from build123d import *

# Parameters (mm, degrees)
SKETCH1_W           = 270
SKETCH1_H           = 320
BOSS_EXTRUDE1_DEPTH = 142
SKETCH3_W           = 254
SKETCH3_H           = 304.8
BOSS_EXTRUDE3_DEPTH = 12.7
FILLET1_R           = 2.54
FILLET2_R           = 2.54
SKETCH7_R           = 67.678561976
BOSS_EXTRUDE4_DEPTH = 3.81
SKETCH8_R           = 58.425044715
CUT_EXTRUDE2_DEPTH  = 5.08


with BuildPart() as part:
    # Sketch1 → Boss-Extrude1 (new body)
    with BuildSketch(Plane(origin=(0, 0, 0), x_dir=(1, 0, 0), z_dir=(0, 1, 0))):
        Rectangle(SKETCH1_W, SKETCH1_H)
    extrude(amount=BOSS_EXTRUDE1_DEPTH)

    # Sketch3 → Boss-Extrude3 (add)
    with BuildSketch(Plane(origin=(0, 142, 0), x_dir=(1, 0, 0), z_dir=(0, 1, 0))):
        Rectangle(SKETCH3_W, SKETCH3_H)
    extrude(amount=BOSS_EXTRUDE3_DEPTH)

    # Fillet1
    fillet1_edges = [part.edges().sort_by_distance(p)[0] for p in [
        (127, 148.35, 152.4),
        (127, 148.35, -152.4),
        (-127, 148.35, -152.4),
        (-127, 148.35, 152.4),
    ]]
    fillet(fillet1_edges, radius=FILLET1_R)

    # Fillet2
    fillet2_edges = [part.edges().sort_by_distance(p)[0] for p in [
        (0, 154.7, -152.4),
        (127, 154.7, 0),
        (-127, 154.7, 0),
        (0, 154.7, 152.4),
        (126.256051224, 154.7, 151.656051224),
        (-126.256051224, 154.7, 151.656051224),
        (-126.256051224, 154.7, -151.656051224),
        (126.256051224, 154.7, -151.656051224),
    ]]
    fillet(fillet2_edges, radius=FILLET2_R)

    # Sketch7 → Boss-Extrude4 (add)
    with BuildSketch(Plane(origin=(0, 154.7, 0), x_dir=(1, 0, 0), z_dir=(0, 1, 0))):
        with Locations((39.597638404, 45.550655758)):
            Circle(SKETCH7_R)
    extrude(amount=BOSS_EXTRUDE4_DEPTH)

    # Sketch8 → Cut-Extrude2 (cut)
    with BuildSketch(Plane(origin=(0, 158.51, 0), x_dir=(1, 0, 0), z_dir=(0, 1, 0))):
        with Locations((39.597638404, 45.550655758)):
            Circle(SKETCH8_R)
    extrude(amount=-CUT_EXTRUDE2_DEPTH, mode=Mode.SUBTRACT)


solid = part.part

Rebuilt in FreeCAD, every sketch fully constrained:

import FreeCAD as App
import Part
import Sketcher
from FreeCAD import Vector
Q = App.Units.Quantity


def edges_at(feature, points):
    """Names of the edges that pass closest to the given points."""
    edges = feature.Shape.Edges
    near = lambda p: min(range(len(edges)), key=lambda i: edges[i].distToShape(Part.Vertex(*p))[0])
    return sorted({f"Edge{near(p) + 1}" for p in points})


def add_polygon(sketch, points):
    """Adds a closed chain of lines whose ends are joined by coincident constraints."""
    first, n = sketch.GeometryCount, len(points)
    for a, b in zip(points, points[1:] + points[:1]):
        sketch.addGeometry(Part.LineSegment(App.Vector(*a, 0), App.Vector(*b, 0)), False)
    for i in range(n):
        sketch.addConstraint(Sketcher.Constraint("Coincident", first + i, 2, first + (i + 1) % n, 1))

doc = App.newDocument("Part")
params = doc.addObject("Spreadsheet::Sheet", "Params")
for row, (alias, value) in enumerate([
    ("pad1_length", "142 mm"),
    ("sketch2_width", "10 in"),
    ("sketch2_height", "12 in"),
    ("pad2_length", "0.5 in"),
    ("fillet_radius", "0.1 in"),
    ("fillet2_radius", "0.1 in"),
    ("pad3_length", "0.15 in"),
    ("pocket1_length", "0.2 in"),
], start=1):
    params.set(f"A{row}", alias)
    params.set(f"B{row}", "=" + value)
    params.setAlias(f"B{row}", alias)

body = doc.addObject("PartDesign::Body", "Body")

sketch1 = body.newObject("Sketcher::SketchObject", "Sketch")
sketch1.AttachmentSupport = (doc.getObject("XZ_Plane"), [""])
sketch1.MapMode = "FlatFace"
add_polygon(sketch1, [(-135, -160), (-135, 160), (135, 160), (135, -160)])
sketch1.addConstraint(Sketcher.Constraint("Vertical", 0))
sketch1.addConstraint(Sketcher.Constraint("Horizontal", 1))
sketch1.addConstraint(Sketcher.Constraint("Vertical", 2))
sketch1.addConstraint(Sketcher.Constraint("Horizontal", 3))
sketch1.addConstraint(Sketcher.Constraint("Symmetric", 0, 2, 2, 2, -1, 1))
sketch1.addConstraint(Sketcher.Constraint("DistanceX", 1, 1, 1, 2, 270.0))
sketch1.addConstraint(Sketcher.Constraint("DistanceY", 0, 1, 0, 2, 320.0))
pad1 = body.newObject("PartDesign::Pad", "Pad")
pad1.Profile = sketch1
pad1.setExpression("Length", "Params.pad1_length")
pad1.Reversed = True

sketch2 = body.newObject("Sketcher::SketchObject", "Sketch001")
sketch2.AttachmentSupport = (doc.getObject("XZ_Plane"), [""])
sketch2.MapMode = "FlatFace"
sketch2.AttachmentOffset = App.Placement(Vector(0, 0, -142), App.Rotation())
add_polygon(sketch2, [(-127, -152), (-127, 152), (127, 152), (127, -152)])
sketch2.addConstraint(Sketcher.Constraint("Vertical", 0))
sketch2.addConstraint(Sketcher.Constraint("Horizontal", 1))
sketch2.addConstraint(Sketcher.Constraint("Vertical", 2))
sketch2.addConstraint(Sketcher.Constraint("Horizontal", 3))
sketch2.addConstraint(Sketcher.Constraint("Symmetric", 0, 2, 2, 2, -1, 1))
sketch2.addConstraint(Sketcher.Constraint("DistanceX", 1, 1, 1, 2, Q("10 in")))
sketch2.addConstraint(Sketcher.Constraint("DistanceY", 0, 1, 0, 2, Q("12 in")))
sketch2.setExpression("Constraints[9]", "Params.sketch2_width")
sketch2.setExpression("Constraints[10]", "Params.sketch2_height")
pad2 = body.newObject("PartDesign::Pad", "Pad001")
pad2.Profile = sketch2
pad2.setExpression("Length", "Params.pad2_length")
pad2.Reversed = True
doc.recompute()

fillet = body.newObject("PartDesign::Fillet", "Fillet")
fillet.Base = (pad2, edges_at(pad2, [
    (127, 148.35, 152.4),
    (127, 148.35, -152.4),
    (-127, 148.35, -152.4),
    (-127, 148.35, 152.4),
]))
fillet.setExpression("Radius", "Params.fillet_radius")
doc.recompute()

fillet2 = body.newObject("PartDesign::Fillet", "Fillet001")
fillet2.Base = (fillet, edges_at(fillet, [
    (0, 154.7, -152.4),
    (127, 154.7, 0),
    (-127, 154.7, 0),
    (0, 154.7, 152.4),
    (126.256, 154.7, 151.656),
    (-126.256, 154.7, 151.656),
    (-126.256, 154.7, -151.656),
    (126.256, 154.7, -151.656),
]))
fillet2.setExpression("Radius", "Params.fillet2_radius")

sketch3 = body.newObject("Sketcher::SketchObject", "Sketch002")
sketch3.AttachmentSupport = (doc.getObject("XZ_Plane"), [""])
sketch3.MapMode = "FlatFace"
sketch3.AttachmentOffset = App.Placement(Vector(0, 0, -154.7), App.Rotation())
sketch3.addGeometry(Part.Circle(Vector(40, -46, 0), Vector(0, 0, 1), 68), False)
sketch3.addConstraint(Sketcher.Constraint("Diameter", 0, 135.357124))
sketch3.addConstraint(Sketcher.Constraint("DistanceX", -1, 1, 0, 3, 39.597638))
sketch3.addConstraint(Sketcher.Constraint("DistanceY", 0, 3, -1, 1, 45.550656))
pad3 = body.newObject("PartDesign::Pad", "Pad002")
pad3.Profile = sketch3
pad3.setExpression("Length", "Params.pad3_length")
pad3.Reversed = True

sketch4 = body.newObject("Sketcher::SketchObject", "Sketch003")
sketch4.AttachmentSupport = (doc.getObject("XZ_Plane"), [""])
sketch4.MapMode = "FlatFace"
sketch4.AttachmentOffset = App.Placement(Vector(0, 0, -158.51), App.Rotation())
sketch4.addGeometry(Part.Circle(Vector(40, -46, 0), Vector(0, 0, 1), 58), False)
sketch4.addConstraint(Sketcher.Constraint("Diameter", 0, 116.850089))
sketch4.addConstraint(Sketcher.Constraint("DistanceX", -1, 1, 0, 3, 39.597638))
sketch4.addConstraint(Sketcher.Constraint("DistanceY", 0, 3, -1, 1, 45.550656))
pocket1 = body.newObject("PartDesign::Pocket", "Pocket")
pocket1.Profile = sketch4
pocket1.setExpression("Length", "Params.pocket1_length")
pocket1.Reversed = True

doc.recompute()
